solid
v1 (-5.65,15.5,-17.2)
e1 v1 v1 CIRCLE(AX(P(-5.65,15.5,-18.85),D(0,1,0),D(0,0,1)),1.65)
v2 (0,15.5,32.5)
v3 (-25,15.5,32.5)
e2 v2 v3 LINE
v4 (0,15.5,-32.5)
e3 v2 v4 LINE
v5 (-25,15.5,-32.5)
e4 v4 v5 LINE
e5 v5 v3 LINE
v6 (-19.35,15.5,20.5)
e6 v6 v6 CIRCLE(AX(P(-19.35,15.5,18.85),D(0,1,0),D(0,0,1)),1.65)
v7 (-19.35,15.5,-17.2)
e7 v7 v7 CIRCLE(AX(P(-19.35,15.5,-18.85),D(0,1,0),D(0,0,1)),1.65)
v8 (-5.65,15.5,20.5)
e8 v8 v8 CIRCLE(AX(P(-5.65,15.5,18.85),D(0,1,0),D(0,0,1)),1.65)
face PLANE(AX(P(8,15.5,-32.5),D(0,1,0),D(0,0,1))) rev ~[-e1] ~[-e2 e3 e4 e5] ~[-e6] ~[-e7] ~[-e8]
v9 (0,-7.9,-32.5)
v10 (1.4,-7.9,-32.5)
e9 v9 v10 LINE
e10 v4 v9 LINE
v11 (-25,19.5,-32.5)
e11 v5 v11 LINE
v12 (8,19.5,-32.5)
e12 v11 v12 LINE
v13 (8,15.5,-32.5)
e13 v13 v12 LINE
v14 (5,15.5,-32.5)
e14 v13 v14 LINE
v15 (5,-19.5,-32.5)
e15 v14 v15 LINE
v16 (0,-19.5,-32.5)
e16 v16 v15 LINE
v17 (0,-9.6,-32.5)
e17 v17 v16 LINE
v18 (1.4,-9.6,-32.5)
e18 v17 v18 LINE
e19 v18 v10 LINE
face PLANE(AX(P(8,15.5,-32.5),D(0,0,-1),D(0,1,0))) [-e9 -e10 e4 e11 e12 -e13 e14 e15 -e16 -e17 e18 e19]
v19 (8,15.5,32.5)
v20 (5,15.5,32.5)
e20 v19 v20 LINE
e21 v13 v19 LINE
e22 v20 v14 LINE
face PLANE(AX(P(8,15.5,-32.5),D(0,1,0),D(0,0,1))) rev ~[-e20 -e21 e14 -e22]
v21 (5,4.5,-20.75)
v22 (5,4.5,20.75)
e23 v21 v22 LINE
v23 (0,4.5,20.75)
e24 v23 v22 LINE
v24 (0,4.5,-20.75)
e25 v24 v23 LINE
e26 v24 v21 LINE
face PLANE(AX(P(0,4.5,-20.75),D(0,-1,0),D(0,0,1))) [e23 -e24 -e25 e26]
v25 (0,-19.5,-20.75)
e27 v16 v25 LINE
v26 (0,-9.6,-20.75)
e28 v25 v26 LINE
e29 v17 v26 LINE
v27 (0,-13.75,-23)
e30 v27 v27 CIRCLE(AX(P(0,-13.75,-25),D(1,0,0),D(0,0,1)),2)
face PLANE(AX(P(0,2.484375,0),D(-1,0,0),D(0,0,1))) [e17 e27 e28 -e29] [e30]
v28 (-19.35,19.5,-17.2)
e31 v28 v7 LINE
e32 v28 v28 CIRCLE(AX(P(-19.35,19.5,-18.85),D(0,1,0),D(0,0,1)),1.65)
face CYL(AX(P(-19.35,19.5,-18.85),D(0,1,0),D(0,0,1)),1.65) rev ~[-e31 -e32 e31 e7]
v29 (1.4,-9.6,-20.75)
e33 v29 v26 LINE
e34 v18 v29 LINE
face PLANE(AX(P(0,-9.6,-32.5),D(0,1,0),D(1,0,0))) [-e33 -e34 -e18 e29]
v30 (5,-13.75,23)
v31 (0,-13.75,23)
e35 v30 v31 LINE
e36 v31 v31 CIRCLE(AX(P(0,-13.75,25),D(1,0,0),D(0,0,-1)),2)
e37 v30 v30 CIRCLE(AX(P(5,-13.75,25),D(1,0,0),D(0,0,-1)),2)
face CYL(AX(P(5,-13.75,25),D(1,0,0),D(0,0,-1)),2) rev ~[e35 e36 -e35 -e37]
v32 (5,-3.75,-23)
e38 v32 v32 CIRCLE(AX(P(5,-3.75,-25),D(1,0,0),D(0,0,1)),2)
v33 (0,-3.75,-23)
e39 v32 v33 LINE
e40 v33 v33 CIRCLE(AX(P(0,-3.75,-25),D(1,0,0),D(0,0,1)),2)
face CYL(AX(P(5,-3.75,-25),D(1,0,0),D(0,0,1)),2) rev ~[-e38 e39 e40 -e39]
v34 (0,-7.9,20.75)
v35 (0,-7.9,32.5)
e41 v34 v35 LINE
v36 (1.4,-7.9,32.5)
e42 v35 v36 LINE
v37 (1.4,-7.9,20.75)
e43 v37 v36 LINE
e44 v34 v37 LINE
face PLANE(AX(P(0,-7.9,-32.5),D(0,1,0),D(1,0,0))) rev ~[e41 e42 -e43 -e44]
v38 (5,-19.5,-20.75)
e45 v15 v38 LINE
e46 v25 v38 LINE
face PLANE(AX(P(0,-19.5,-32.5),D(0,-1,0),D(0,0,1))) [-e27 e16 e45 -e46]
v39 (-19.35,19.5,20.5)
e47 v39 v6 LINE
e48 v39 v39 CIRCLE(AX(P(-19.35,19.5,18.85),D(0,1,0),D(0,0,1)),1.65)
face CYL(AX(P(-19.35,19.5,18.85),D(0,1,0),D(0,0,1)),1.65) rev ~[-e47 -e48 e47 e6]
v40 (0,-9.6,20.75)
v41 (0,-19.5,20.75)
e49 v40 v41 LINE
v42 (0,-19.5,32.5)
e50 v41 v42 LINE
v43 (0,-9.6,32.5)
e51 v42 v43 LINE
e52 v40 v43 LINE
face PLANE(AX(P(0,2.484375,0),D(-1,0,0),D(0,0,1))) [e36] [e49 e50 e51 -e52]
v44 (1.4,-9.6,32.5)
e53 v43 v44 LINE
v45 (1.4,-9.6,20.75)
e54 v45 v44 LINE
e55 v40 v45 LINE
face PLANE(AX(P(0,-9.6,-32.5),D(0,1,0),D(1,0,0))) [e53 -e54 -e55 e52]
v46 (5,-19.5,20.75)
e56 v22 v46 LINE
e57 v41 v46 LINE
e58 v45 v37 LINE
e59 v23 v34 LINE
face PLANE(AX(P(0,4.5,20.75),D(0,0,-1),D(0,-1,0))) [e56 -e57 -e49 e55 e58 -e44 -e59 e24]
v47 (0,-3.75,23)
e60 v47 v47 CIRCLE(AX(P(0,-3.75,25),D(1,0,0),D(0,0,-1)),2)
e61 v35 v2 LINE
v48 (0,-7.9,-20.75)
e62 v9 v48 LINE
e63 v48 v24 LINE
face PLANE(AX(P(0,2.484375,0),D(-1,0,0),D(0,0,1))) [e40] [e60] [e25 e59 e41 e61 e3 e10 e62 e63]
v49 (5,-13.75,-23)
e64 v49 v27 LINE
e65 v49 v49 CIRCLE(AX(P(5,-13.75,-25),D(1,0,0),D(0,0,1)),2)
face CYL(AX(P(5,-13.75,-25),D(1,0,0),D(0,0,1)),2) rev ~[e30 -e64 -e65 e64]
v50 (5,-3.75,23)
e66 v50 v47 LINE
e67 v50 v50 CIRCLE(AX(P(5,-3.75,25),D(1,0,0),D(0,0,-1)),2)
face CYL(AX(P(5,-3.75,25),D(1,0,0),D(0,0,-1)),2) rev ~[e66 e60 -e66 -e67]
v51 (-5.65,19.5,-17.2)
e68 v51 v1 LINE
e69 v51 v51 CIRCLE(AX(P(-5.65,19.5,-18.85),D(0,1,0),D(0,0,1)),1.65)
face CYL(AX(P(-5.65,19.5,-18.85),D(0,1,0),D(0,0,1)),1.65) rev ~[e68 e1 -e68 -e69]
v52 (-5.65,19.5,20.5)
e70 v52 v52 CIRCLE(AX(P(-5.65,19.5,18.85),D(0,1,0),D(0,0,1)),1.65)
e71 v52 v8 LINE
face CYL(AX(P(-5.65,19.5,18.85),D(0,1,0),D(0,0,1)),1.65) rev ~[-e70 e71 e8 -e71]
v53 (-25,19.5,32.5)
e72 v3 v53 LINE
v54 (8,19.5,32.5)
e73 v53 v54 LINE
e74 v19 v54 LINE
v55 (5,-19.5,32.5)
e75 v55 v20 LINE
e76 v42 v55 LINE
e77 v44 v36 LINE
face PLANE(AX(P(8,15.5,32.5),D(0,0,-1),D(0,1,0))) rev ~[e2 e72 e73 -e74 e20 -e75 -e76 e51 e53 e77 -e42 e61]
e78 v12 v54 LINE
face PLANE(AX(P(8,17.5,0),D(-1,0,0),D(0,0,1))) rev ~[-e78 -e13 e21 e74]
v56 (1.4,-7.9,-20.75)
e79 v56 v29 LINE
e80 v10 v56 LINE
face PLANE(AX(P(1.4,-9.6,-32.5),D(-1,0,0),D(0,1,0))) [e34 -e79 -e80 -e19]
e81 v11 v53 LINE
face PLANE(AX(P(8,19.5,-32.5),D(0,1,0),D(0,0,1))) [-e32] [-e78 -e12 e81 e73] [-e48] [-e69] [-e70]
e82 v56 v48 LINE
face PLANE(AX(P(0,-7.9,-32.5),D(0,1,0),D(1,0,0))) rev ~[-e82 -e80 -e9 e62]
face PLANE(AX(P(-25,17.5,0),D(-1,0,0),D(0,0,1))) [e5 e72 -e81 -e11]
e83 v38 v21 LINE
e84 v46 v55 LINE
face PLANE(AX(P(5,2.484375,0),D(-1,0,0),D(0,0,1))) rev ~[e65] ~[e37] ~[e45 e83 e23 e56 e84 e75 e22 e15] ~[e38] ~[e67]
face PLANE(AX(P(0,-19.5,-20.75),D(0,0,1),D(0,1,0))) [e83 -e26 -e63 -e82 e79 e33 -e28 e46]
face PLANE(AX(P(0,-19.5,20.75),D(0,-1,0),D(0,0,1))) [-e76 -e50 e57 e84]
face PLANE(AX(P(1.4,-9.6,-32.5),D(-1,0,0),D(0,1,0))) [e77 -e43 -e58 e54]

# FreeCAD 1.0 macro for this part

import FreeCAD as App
import Part
import Sketcher
Q = App.Units.Quantity

doc = App.newDocument("Part")
params = doc.addObject("Spreadsheet::Sheet", "Params")
for row, (alias, value) in enumerate([
    ("sketch1_width", "39 mm"),
    ("sketch1_width2", "24 mm"),
    ("sketch1_height", "65 mm"),
    ("sketch1_height2", "41.5 mm"),
    ("pad1_length", "5 mm"),
    ("sketch2_width", "4 mm"),
    ("sketch2_height", "65 mm"),
    ("pad2_length", "25 mm"),
    ("pad2_length2", "8 mm"),
    ("sketch3_width", "1.4 mm"),
    ("sketch3_height", "1.7 mm"),
    ("pocket1_length", "65 mm"),
    ("sketch4_diameter", "4 mm"),
    ("pocket2_length", "5 mm"),
    ("sketch5_diameter", "3.3 mm"),
    ("pocket3_length", "4 mm"),
], start=1):
    params.set(f"A{row}", alias)
    params.set(f"B{row}", "=" + value)
    params.setAlias(f"B{row}", alias)

body = doc.addObject("PartDesign::Body", "Body")

sketch1 = body.newObject("Sketcher::SketchObject", "Sketch")
sketch1.AttachmentSupport = (doc.getObject("YZ_Plane"), [""])
sketch1.MapMode = "FlatFace"
sketch1.addGeometry([
    Part.LineSegment(App.Vector(-20, -21, 0), App.Vector(-20, -32, 0)),
    Part.LineSegment(App.Vector(-20, -32, 0), App.Vector(20, -32, 0)),
    Part.LineSegment(App.Vector(20, -32, 0), App.Vector(20, 32, 0)),
    Part.LineSegment(App.Vector(20, 32, 0), App.Vector(-20, 32, 0)),
    Part.LineSegment(App.Vector(-20, 32, 0), App.Vector(-20, 21, 0)),
    Part.LineSegment(App.Vector(-20, 21, 0), App.Vector(4, 21, 0)),
    Part.LineSegment(App.Vector(4, 21, 0), App.Vector(4, -21, 0)),
    Part.LineSegment(App.Vector(4, -21, 0), App.Vector(-20, -21, 0)),
], False)
sketch1.addConstraint([
    Sketcher.Constraint("Coincident", 0, 2, 1, 1),
    Sketcher.Constraint("Coincident", 1, 2, 2, 1),
    Sketcher.Constraint("Coincident", 2, 2, 3, 1),
    Sketcher.Constraint("Coincident", 3, 2, 4, 1),
    Sketcher.Constraint("Coincident", 4, 2, 5, 1),
    Sketcher.Constraint("Coincident", 5, 2, 6, 1),
    Sketcher.Constraint("Coincident", 6, 2, 7, 1),
    Sketcher.Constraint("Coincident", 7, 2, 0, 1),
    Sketcher.Constraint("Vertical", 0),
    Sketcher.Constraint("Horizontal", 1),
    Sketcher.Constraint("Vertical", 2),
    Sketcher.Constraint("Horizontal", 3),
    Sketcher.Constraint("Vertical", 4),
    Sketcher.Constraint("Horizontal", 5),
    Sketcher.Constraint("Vertical", 6),
    Sketcher.Constraint("Horizontal", 7),
    Sketcher.Constraint("Symmetric", 0, 2, 2, 2, -1, 1),
    Sketcher.Constraint("Symmetric", 4, 2, 7, 2, -1),
    Sketcher.Constraint("DistanceX", 1, 1, 1, 2, Q("39 mm")),
    Sketcher.Constraint("DistanceX", 5, 1, 5, 2, Q("24 mm")),
    Sketcher.Constraint("DistanceY", 2, 1, 2, 2, Q("65 mm")),
    Sketcher.Constraint("DistanceY", 6, 2, 6, 1, Q("41.5 mm")),
])
sketch1.setExpression("Constraints[18]", "Params.sketch1_width")
sketch1.setExpression("Constraints[19]", "Params.sketch1_width2")
sketch1.setExpression("Constraints[20]", "Params.sketch1_height")
sketch1.setExpression("Constraints[21]", "Params.sketch1_height2")
pad1 = body.newObject("PartDesign::Pad", "Pad")
pad1.Profile = sketch1
pad1.setExpression("Length", "Params.pad1_length")

sketch2 = body.newObject("Sketcher::SketchObject", "Sketch001")
sketch2.AttachmentSupport = (doc.getObject("YZ_Plane"), [""])
sketch2.MapMode = "FlatFace"
sketch2.addGeometry([
    Part.LineSegment(App.Vector(19.5, -32.5, 0), App.Vector(15.5, -32.5, 0)),
    Part.LineSegment(App.Vector(15.5, -32.5, 0), App.Vector(15.5, 32.5, 0)),
    Part.LineSegment(App.Vector(15.5, 32.5, 0), App.Vector(19.5, 32.5, 0)),
    Part.LineSegment(App.Vector(19.5, 32.5, 0), App.Vector(19.5, -32.5, 0)),
], False)
sketch2.addConstraint([
    Sketcher.Constraint("Coincident", 0, 2, 1, 1),
    Sketcher.Constraint("Coincident", 1, 2, 2, 1),
    Sketcher.Constraint("Coincident", 2, 2, 3, 1),
    Sketcher.Constraint("Coincident", 3, 2, 0, 1),
    Sketcher.Constraint("Horizontal", 0),
    Sketcher.Constraint("Vertical", 1),
    Sketcher.Constraint("Horizontal", 2),
    Sketcher.Constraint("Vertical", 3),
    Sketcher.Constraint("DistanceX", 0, 2, 0, 1, Q("4 mm")),
    Sketcher.Constraint("DistanceY", 1, 1, 1, 2, Q("65 mm")),
    Sketcher.Constraint("DistanceX", -1, 1, 0, 2, Q("15.5 mm")),
    Sketcher.Constraint("DistanceY", 0, 2, -1, 1, Q("32.5 mm")),
])
sketch2.setExpression("Constraints[8]", "Params.sketch2_width")
sketch2.setExpression("Constraints[9]", "Params.sketch2_height")
pad2 = body.newObject("PartDesign::Pad", "Pad001")
pad2.Profile = sketch2
pad2.Type = "TwoLengths"
pad2.setExpression("Length", "Params.pad2_length")
pad2.setExpression("Length2", "Params.pad2_length2")
pad2.Reversed = True

sketch3 = body.newObject("Sketcher::SketchObject", "Sketch002")
sketch3.AttachmentSupport = (doc.getObject("XY_Plane"), [""])
sketch3.MapMode = "FlatFace"
sketch3.AttachmentOffset = App.Placement(App.Vector(0, 0, -32.5), App.Rotation())
sketch3.addGeometry([
    Part.LineSegment(App.Vector(0, -7.9, 0), App.Vector(0, -9.6, 0)),
    Part.LineSegment(App.Vector(0, -9.6, 0), App.Vector(1.4, -9.6, 0)),
    Part.LineSegment(App.Vector(1.4, -9.6, 0), App.Vector(1.4, -7.9, 0)),
    Part.LineSegment(App.Vector(1.4, -7.9, 0), App.Vector(0, -7.9, 0)),
], False)
sketch3.addConstraint([
    Sketcher.Constraint("Coincident", 0, 2, 1, 1),
    Sketcher.Constraint("Coincident", 1, 2, 2, 1),
    Sketcher.Constraint("Coincident", 2, 2, 3, 1),
    Sketcher.Constraint("Coincident", 3, 2, 0, 1),
    Sketcher.Constraint("Vertical", 0),
    Sketcher.Constraint("Horizontal", 1),
    Sketcher.Constraint("Vertical", 2),
    Sketcher.Constraint("Horizontal", 3),
    Sketcher.Constraint("PointOnObject", 0, 2, -2),
    Sketcher.Constraint("DistanceX", 1, 1, 1, 2, Q("1.4 mm")),
    Sketcher.Constraint("DistanceY", 0, 2, 0, 1, Q("1.7 mm")),
    Sketcher.Constraint("DistanceY", 0, 2, -1, 1, Q("9.6 mm")),
])
sketch3.setExpression("Constraints[9]", "Params.sketch3_width")
sketch3.setExpression("Constraints[10]", "Params.sketch3_height")
pocket1 = body.newObject("PartDesign::Pocket", "Pocket")
pocket1.Profile = sketch3
pocket1.setExpression("Length", "Params.pocket1_length")
pocket1.Reversed = True

sketch4 = body.newObject("Sketcher::SketchObject", "Sketch003")
sketch4.AttachmentSupport = (doc.getObject("YZ_Plane"), [""])
sketch4.MapMode = "FlatFace"
sketch4.AttachmentOffset = App.Placement(App.Vector(0, 0, 5), App.Rotation())
sketch4.addGeometry([
    Part.Circle(App.Vector(-3.8, 25, 0), App.Vector(0, 0, 1), 2),
    Part.Circle(App.Vector(-13.8, 25, 0), App.Vector(0, 0, 1), 2),
    Part.Circle(App.Vector(-13.8, -25, 0), App.Vector(0, 0, 1), 2),
    Part.Circle(App.Vector(-3.8, -25, 0), App.Vector(0, 0, 1), 2),
], False)
sketch4.addConstraint([
    Sketcher.Constraint("Equal", 0, 1),
    Sketcher.Constraint("Equal", 1, 2),
    Sketcher.Constraint("Equal", 2, 3),
    Sketcher.Constraint("Symmetric", 1, 3, 2, 3, -1),
    Sketcher.Constraint("Symmetric", 0, 3, 3, 3, -1),
    Sketcher.Constraint("Horizontal", 0, 3, 1, 3),
    Sketcher.Constraint("Diameter", 0, Q("4 mm")),
    Sketcher.Constraint("DistanceY", -1, 1, 0, 3, Q("25 mm")),
    Sketcher.Constraint("DistanceX", 1, 3, 0, 3, Q("10 mm")),
    Sketcher.Constraint("DistanceX", 0, 3, -1, 1, Q("3.75 mm")),
])
sketch4.setExpression("Constraints[6]", "Params.sketch4_diameter")
pocket2 = body.newObject("PartDesign::Pocket", "Pocket001")
pocket2.Profile = sketch4
pocket2.setExpression("Length", "Params.pocket2_length")

sketch5 = body.newObject("Sketcher::SketchObject", "Sketch004")
sketch5.AttachmentSupport = (doc.getObject("XZ_Plane"), [""])
sketch5.MapMode = "FlatFace"
sketch5.AttachmentOffset = App.Placement(App.Vector(0, 0, -19.5), App.Rotation())
sketch5.addGeometry([
    Part.Circle(App.Vector(-19.4, 18.9, 0), App.Vector(0, 0, 1), 1.6),
    Part.Circle(App.Vector(-5.7, 18.9, 0), App.Vector(0, 0, 1), 1.6),
    Part.Circle(App.Vector(-19.4, -18.9, 0), App.Vector(0, 0, 1), 1.6),
    Part.Circle(App.Vector(-5.7, -18.9, 0), App.Vector(0, 0, 1), 1.6),
], False)
sketch5.addConstraint([
    Sketcher.Constraint("Equal", 0, 1),
    Sketcher.Constraint("Equal", 1, 2),
    Sketcher.Constraint("Equal", 2, 3),
    Sketcher.Constraint("Symmetric", 0, 3, 2, 3, -1),
    Sketcher.Constraint("Symmetric", 1, 3, 3, 3, -1),
    Sketcher.Constraint("Horizontal", 0, 3, 1, 3),
    Sketcher.Constraint("Diameter", 0, Q("3.3 mm")),
    Sketcher.Constraint("DistanceX", 0, 3, 1, 3, Q("13.7 mm")),
    Sketcher.Constraint("DistanceY", 2, 3, 0, 3, Q("37.7 mm")),
    Sketcher.Constraint("DistanceX", 0, 3, -1, 1, Q("19.35 mm")),
])
sketch5.setExpression("Constraints[6]", "Params.sketch5_diameter")
pocket3 = body.newObject("PartDesign::Pocket", "Pocket002")
pocket3.Profile = sketch5
pocket3.setExpression("Length", "Params.pocket3_length")
pocket3.Reversed = True

doc.recompute()
